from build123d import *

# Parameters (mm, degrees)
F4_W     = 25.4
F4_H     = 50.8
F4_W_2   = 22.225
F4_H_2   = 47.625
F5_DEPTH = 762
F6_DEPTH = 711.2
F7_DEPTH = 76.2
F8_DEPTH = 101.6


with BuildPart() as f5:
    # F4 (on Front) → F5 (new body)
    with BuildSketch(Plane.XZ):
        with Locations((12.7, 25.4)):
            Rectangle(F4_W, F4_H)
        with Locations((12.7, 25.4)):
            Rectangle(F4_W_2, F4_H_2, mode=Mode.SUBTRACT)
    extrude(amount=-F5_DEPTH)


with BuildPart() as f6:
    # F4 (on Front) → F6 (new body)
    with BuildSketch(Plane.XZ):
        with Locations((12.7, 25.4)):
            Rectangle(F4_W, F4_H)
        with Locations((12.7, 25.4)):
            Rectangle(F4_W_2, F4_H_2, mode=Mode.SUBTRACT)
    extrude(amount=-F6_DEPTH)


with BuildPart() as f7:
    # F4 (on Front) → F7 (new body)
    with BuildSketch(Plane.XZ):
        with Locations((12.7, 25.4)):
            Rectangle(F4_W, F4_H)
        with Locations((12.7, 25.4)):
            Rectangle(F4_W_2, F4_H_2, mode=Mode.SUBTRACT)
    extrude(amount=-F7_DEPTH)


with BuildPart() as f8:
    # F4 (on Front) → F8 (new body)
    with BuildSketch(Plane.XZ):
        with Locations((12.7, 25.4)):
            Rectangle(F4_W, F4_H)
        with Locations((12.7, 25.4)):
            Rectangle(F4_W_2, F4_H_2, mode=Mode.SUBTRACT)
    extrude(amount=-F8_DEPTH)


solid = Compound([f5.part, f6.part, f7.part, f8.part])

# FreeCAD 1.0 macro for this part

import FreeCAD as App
import Part
import Sketcher
from FreeCAD import Vector
Q = App.Units.Quantity


def add_polygon(sketch, points):
    """Adds a closed chain of lines whose ends are joined by coincident constraints."""
    first, n = sketch.GeometryCount, len(points)
    for a, b in zip(points, points[1:] + points[:1]):
        sketch.addGeometry(Part.LineSegment(App.Vector(*a, 0), App.Vector(*b, 0)), False)
    for i in range(n):
        sketch.addConstraint(Sketcher.Constraint("Coincident", first + i, 2, first + (i + 1) % n, 1))

doc = App.newDocument("Part")
params = doc.addObject("Spreadsheet::Sheet", "Params")
for row, (alias, value) in enumerate([
    ("sketch1_width", "1 in"),
    ("sketch1_height", "2 in"),
    ("sketch1_width2", "0.875 in"),
    ("sketch1_height2", "1.875 in"),
    ("pad1_length", "30 in"),
    ("sketch2_width", "1 in"),
    ("sketch2_height", "2 in"),
    ("sketch2_width2", "0.875 in"),
    ("sketch2_height2", "1.875 in"),
    ("pad2_length", "28 in"),
    ("sketch3_width", "1 in"),
    ("sketch3_height", "2 in"),
    ("sketch3_width2", "0.875 in"),
    ("sketch3_height2", "1.875 in"),
    ("pad3_length", "3 in"),
    ("sketch4_width", "1 in"),
    ("sketch4_height", "2 in"),
    ("sketch4_width2", "0.875 in"),
    ("sketch4_height2", "1.875 in"),
    ("pad4_length", "4 in"),
], start=1):
    params.set(f"A{row}", alias)
    params.set(f"B{row}", "=" + value)
    params.setAlias(f"B{row}", alias)

body = doc.addObject("PartDesign::Body", "Body")

# Sketch on XZ plane
sketch1 = body.newObject("Sketcher::SketchObject", "Sketch")
sketch1.AttachmentSupport = (doc.getObject("XZ_Plane"), [""])
sketch1.MapMode = "FlatFace"
add_polygon(sketch1, [(0, 51), (0, 0), (25, 0), (25, 51)])  # lines 0-3
add_polygon(sketch1, [(24, 2), (2, 2), (2, 49), (24, 49)])  # lines 4-7
sketch1.addConstraint([
    Sketcher.Constraint("Vertical", 0),
    Sketcher.Constraint("Horizontal", 1),
    Sketcher.Constraint("Vertical", 2),
    Sketcher.Constraint("Horizontal", 3),
    Sketcher.Constraint("Horizontal", 4),
    Sketcher.Constraint("Vertical", 5),
    Sketcher.Constraint("Horizontal", 6),
    Sketcher.Constraint("Vertical", 7),
    Sketcher.Constraint("Coincident", 0, 2, -1, 1),
    Sketcher.Constraint("DistanceX", 1, 1, 1, 2, Q("1 in")),
    Sketcher.Constraint("DistanceY", 0, 2, 0, 1, Q("2 in")),
    Sketcher.Constraint("DistanceX", 4, 2, 4, 1, Q("0.875 in")),
    Sketcher.Constraint("DistanceY", 5, 1, 5, 2, Q("1.875 in")),
    Sketcher.Constraint("DistanceX", -1, 1, 4, 2, Q("0.0625 in")),
    Sketcher.Constraint("DistanceY", -1, 1, 4, 2, Q("0.0625 in")),
])
sketch1.setExpression("Constraints[17]", "Params.sketch1_width")
sketch1.setExpression("Constraints[18]", "Params.sketch1_height")
sketch1.setExpression("Constraints[19]", "Params.sketch1_width2")
sketch1.setExpression("Constraints[20]", "Params.sketch1_height2")
pad1 = body.newObject("PartDesign::Pad", "Pad")
pad1.Profile = sketch1
pad1.setExpression("Length", "Params.pad1_length")
pad1.Reversed = True
body2 = doc.addObject("PartDesign::Body", "Body001")

# Sketch on XZ plane
sketch2 = body2.newObject("Sketcher::SketchObject", "Sketch001")
sketch2.AttachmentSupport = (doc.getObject("XZ_Plane001"), [""])
sketch2.MapMode = "FlatFace"
add_polygon(sketch2, [(0, 51), (0, 0), (25, 0), (25, 51)])  # lines 0-3
add_polygon(sketch2, [(24, 2), (2, 2), (2, 49), (24, 49)])  # lines 4-7
sketch2.addConstraint([
    Sketcher.Constraint("Vertical", 0),
    Sketcher.Constraint("Horizontal", 1),
    Sketcher.Constraint("Vertical", 2),
    Sketcher.Constraint("Horizontal", 3),
    Sketcher.Constraint("Horizontal", 4),
    Sketcher.Constraint("Vertical", 5),
    Sketcher.Constraint("Horizontal", 6),
    Sketcher.Constraint("Vertical", 7),
    Sketcher.Constraint("Coincident", 0, 2, -1, 1),
    Sketcher.Constraint("DistanceX", 1, 1, 1, 2, Q("1 in")),
    Sketcher.Constraint("DistanceY", 0, 2, 0, 1, Q("2 in")),
    Sketcher.Constraint("DistanceX", 4, 2, 4, 1, Q("0.875 in")),
    Sketcher.Constraint("DistanceY", 5, 1, 5, 2, Q("1.875 in")),
    Sketcher.Constraint("DistanceX", -1, 1, 4, 2, Q("0.0625 in")),
    Sketcher.Constraint("DistanceY", -1, 1, 4, 2, Q("0.0625 in")),
])
sketch2.setExpression("Constraints[17]", "Params.sketch2_width")
sketch2.setExpression("Constraints[18]", "Params.sketch2_height")
sketch2.setExpression("Constraints[19]", "Params.sketch2_width2")
sketch2.setExpression("Constraints[20]", "Params.sketch2_height2")
pad2 = body2.newObject("PartDesign::Pad", "Pad001")
pad2.Profile = sketch2
pad2.setExpression("Length", "Params.pad2_length")
pad2.Reversed = True
body3 = doc.addObject("PartDesign::Body", "Body002")

# Sketch on XZ plane
sketch3 = body3.newObject("Sketcher::SketchObject", "Sketch002")
sketch3.AttachmentSupport = (doc.getObject("XZ_Plane002"), [""])
sketch3.MapMode = "FlatFace"
add_polygon(sketch3, [(0, 51), (0, 0), (25, 0), (25, 51)])  # lines 0-3
add_polygon(sketch3, [(24, 2), (2, 2), (2, 49), (24, 49)])  # lines 4-7
sketch3.addConstraint([
    Sketcher.Constraint("Vertical", 0),
    Sketcher.Constraint("Horizontal", 1),
    Sketcher.Constraint("Vertical", 2),
    Sketcher.Constraint("Horizontal", 3),
    Sketcher.Constraint("Horizontal", 4),
    Sketcher.Constraint("Vertical", 5),
    Sketcher.Constraint("Horizontal", 6),
    Sketcher.Constraint("Vertical", 7),
    Sketcher.Constraint("Coincident", 0, 2, -1, 1),
    Sketcher.Constraint("DistanceX", 1, 1, 1, 2, Q("1 in")),
    Sketcher.Constraint("DistanceY", 0, 2, 0, 1, Q("2 in")),
    Sketcher.Constraint("DistanceX", 4, 2, 4, 1, Q("0.875 in")),
    Sketcher.Constraint("DistanceY", 5, 1, 5, 2, Q("1.875 in")),
    Sketcher.Constraint("DistanceX", -1, 1, 4, 2, Q("0.0625 in")),
    Sketcher.Constraint("DistanceY", -1, 1, 4, 2, Q("0.0625 in")),
])
sketch3.setExpression("Constraints[17]", "Params.sketch3_width")
sketch3.setExpression("Constraints[18]", "Params.sketch3_height")
sketch3.setExpression("Constraints[19]", "Params.sketch3_width2")
sketch3.setExpression("Constraints[20]", "Params.sketch3_height2")
pad3 = body3.newObject("PartDesign::Pad", "Pad002")
pad3.Profile = sketch3
pad3.setExpression("Length", "Params.pad3_length")
pad3.Reversed = True
body4 = doc.addObject("PartDesign::Body", "Body003")

# Sketch on XZ plane
sketch4 = body4.newObject("Sketcher::SketchObject", "Sketch003")
sketch4.AttachmentSupport = (doc.getObject("XZ_Plane003"), [""])
sketch4.MapMode = "FlatFace"
add_polygon(sketch4, [(0, 51), (0, 0), (25, 0), (25, 51)])  # lines 0-3
add_polygon(sketch4, [(24, 2), (2, 2), (2, 49), (24, 49)])  # lines 4-7
sketch4.addConstraint([
    Sketcher.Constraint("Vertical", 0),
    Sketcher.Constraint("Horizontal", 1),
    Sketcher.Constraint("Vertical", 2),
    Sketcher.Constraint("Horizontal", 3),
    Sketcher.Constraint("Horizontal", 4),
    Sketcher.Constraint("Vertical", 5),
    Sketcher.Constraint("Horizontal", 6),
    Sketcher.Constraint("Vertical", 7),
    Sketcher.Constraint("Coincident", 0, 2, -1, 1),
    Sketcher.Constraint("DistanceX", 1, 1, 1, 2, Q("1 in")),
    Sketcher.Constraint("DistanceY", 0, 2, 0, 1, Q("2 in")),
    Sketcher.Constraint("DistanceX", 4, 2, 4, 1, Q("0.875 in")),
    Sketcher.Constraint("DistanceY", 5, 1, 5, 2, Q("1.875 in")),
    Sketcher.Constraint("DistanceX", -1, 1, 4, 2, Q("0.0625 in")),
    Sketcher.Constraint("DistanceY", -1, 1, 4, 2, Q("0.0625 in")),
])
sketch4.setExpression("Constraints[17]", "Params.sketch4_width")
sketch4.setExpression("Constraints[18]", "Params.sketch4_height")
sketch4.setExpression("Constraints[19]", "Params.sketch4_width2")
sketch4.setExpression("Constraints[20]", "Params.sketch4_height2")
pad4 = body4.newObject("PartDesign::Pad", "Pad003")
pad4.Profile = sketch4
pad4.setExpression("Length", "Params.pad4_length")
pad4.Reversed = True

doc.recompute()
